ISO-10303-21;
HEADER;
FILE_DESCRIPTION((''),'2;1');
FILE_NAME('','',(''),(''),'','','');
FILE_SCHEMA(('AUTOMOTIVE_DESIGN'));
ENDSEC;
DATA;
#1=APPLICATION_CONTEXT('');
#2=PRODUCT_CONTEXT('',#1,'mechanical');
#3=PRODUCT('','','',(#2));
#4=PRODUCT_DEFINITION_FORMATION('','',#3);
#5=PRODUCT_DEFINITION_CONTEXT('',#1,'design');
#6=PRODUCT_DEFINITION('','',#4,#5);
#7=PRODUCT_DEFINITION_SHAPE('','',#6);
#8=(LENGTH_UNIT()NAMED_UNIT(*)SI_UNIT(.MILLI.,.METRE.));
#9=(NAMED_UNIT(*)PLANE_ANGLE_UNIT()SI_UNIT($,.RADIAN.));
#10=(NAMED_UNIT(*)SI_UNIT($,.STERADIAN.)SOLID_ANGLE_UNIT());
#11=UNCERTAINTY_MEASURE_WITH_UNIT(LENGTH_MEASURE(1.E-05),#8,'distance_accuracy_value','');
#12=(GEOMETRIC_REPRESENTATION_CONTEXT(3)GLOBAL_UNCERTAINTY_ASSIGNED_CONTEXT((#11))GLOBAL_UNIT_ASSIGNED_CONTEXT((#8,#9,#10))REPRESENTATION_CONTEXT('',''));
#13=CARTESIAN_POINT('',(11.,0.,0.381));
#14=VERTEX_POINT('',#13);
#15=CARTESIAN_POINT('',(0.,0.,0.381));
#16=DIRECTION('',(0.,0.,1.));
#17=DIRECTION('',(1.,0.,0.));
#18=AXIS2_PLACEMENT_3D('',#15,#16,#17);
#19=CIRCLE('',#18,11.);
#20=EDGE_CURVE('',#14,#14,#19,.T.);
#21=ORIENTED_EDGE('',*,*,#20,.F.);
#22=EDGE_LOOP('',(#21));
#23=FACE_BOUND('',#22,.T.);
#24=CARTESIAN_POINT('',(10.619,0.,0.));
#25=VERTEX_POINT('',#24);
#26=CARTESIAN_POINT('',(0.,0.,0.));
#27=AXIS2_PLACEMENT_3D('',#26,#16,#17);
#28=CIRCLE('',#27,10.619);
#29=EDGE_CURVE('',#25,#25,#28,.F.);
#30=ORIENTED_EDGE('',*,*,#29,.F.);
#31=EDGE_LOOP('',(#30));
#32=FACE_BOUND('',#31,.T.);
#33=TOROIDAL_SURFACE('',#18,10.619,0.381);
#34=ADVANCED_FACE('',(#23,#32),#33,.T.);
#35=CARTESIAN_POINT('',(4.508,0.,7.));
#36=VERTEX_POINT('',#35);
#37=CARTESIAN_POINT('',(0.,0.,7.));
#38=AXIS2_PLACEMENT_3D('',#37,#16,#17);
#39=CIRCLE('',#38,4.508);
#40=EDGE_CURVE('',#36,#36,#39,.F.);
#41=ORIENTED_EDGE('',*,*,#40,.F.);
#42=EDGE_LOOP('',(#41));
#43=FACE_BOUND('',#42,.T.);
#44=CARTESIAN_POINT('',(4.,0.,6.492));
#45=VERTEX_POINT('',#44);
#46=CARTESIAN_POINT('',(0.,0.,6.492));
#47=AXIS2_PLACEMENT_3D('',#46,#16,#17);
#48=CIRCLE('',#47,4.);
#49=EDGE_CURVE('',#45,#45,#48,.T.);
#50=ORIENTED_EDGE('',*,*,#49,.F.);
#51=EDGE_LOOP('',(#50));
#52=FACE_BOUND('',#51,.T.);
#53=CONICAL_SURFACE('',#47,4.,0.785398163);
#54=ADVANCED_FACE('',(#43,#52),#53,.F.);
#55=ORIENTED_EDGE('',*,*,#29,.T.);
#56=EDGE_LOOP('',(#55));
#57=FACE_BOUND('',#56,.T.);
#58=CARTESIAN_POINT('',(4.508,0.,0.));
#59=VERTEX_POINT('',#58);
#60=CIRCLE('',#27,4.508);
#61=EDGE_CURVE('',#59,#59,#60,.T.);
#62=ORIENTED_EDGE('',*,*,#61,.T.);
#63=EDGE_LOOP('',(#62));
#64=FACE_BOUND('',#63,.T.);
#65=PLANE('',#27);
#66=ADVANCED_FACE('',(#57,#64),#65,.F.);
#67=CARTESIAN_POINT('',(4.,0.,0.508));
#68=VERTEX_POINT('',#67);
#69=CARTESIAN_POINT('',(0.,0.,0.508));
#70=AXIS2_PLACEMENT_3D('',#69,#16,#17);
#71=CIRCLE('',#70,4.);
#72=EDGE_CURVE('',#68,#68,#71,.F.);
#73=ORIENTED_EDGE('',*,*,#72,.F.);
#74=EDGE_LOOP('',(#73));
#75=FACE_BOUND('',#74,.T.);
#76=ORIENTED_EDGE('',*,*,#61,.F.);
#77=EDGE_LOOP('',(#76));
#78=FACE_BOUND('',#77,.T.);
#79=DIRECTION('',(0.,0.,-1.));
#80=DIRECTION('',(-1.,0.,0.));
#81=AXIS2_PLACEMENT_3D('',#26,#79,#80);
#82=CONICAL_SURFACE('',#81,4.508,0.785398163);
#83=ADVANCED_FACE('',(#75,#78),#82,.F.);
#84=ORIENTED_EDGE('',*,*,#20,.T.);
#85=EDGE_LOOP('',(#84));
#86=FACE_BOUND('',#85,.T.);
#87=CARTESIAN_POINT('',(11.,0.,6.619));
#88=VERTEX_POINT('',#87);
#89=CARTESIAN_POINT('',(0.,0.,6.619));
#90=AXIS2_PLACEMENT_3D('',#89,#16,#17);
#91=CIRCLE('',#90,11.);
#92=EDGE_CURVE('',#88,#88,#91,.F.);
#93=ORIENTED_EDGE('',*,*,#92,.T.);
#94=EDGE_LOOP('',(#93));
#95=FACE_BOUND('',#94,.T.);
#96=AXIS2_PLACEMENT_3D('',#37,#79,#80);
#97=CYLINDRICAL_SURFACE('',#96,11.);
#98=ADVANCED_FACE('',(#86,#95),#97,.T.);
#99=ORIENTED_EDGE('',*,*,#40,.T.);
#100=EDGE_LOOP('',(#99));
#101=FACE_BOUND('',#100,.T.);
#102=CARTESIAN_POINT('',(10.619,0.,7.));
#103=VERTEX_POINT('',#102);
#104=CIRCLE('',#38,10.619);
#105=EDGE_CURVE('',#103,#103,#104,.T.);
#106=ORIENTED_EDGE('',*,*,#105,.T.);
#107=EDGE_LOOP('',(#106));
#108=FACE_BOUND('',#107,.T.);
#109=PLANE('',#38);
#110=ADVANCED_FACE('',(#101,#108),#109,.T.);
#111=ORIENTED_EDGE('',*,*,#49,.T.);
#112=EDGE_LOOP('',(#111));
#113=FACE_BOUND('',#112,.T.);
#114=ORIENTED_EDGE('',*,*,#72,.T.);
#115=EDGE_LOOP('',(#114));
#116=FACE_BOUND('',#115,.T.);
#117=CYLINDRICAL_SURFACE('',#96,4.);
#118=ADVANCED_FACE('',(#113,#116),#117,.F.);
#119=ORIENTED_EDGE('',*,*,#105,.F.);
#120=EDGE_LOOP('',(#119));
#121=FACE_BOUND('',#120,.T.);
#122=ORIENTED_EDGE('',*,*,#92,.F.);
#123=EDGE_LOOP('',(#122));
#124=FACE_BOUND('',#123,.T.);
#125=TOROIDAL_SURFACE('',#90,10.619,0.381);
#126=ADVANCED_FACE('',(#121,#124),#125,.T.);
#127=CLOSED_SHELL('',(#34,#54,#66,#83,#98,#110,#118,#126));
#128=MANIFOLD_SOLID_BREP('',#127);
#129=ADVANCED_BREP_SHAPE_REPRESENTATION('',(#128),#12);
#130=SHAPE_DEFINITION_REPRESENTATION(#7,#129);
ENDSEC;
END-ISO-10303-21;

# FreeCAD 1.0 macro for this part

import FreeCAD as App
import Part
import Sketcher

V = App.Vector


def edges_at(feature, points):
    """Names of the edges that pass closest to the given points."""
    edges = feature.Shape.Edges
    near = lambda p: min(range(len(edges)), key=lambda i: edges[i].distToShape(Part.Vertex(*p))[0])
    return sorted({f"Edge{near(p) + 1}" for p in points})

doc = App.newDocument("Part")
params = doc.addObject("Spreadsheet::Sheet", "Params")
for row, (alias, value) in enumerate([
    ("sketch1_diameter", "22 mm"),
    ("sketch1_diameter2", "8 mm"),
    ("pad1_length", "7 mm"),
    ("fillet_radius", "0.381 mm"),
    ("chamfer_size", "0.508 mm"),
], start=1):
    params.set(f"A{row}", alias)
    params.set(f"B{row}", "=" + value)
    params.setAlias(f"B{row}", alias)

body = doc.addObject("PartDesign::Body", "Body")

sketch1 = doc.addObject("Sketcher::SketchObject", "Sketch")
body.addObject(sketch1)
sketch1.AttachmentSupport = (doc.XY_Plane, [""])
sketch1.MapMode = "FlatFace"
sketch1.addGeometry([
    Part.Circle(V(0, 0, 0), V(0, 0, 1), 11),
    Part.Circle(V(0, 0, 0), V(0, 0, 1), 4),
], False)
sketch1.addConstraint([
    Sketcher.Constraint("Coincident", 0, 3, -1, 1),
    Sketcher.Constraint("Coincident", 1, 3, -1, 1),
    Sketcher.Constraint("Diameter", 0, 22.0),
    Sketcher.Constraint("Diameter", 1, 8.0),
])
sketch1.setExpression("Constraints[2]", "Params.sketch1_diameter")
sketch1.setExpression("Constraints[3]", "Params.sketch1_diameter2")
pad1 = doc.addObject("PartDesign::Pad", "Pad")
body.addObject(pad1)
pad1.Profile = sketch1
pad1.setExpression("Length", "Params.pad1_length")
doc.recompute()

fillet = doc.addObject("PartDesign::Fillet", "Fillet")
body.addObject(fillet)
fillet.Base = (pad1, edges_at(pad1, [(-11, 0, 0), (-11, 0, 7)]))
fillet.setExpression("Radius", "Params.fillet_radius")
doc.recompute()

chamfer = doc.addObject("PartDesign::Chamfer", "Chamfer")
body.addObject(chamfer)
chamfer.Base = (fillet, edges_at(fillet, [(-4, 0, 0), (-4, 0, 7)]))
chamfer.setExpression("Size", "Params.chamfer_size")

doc.recompute()
